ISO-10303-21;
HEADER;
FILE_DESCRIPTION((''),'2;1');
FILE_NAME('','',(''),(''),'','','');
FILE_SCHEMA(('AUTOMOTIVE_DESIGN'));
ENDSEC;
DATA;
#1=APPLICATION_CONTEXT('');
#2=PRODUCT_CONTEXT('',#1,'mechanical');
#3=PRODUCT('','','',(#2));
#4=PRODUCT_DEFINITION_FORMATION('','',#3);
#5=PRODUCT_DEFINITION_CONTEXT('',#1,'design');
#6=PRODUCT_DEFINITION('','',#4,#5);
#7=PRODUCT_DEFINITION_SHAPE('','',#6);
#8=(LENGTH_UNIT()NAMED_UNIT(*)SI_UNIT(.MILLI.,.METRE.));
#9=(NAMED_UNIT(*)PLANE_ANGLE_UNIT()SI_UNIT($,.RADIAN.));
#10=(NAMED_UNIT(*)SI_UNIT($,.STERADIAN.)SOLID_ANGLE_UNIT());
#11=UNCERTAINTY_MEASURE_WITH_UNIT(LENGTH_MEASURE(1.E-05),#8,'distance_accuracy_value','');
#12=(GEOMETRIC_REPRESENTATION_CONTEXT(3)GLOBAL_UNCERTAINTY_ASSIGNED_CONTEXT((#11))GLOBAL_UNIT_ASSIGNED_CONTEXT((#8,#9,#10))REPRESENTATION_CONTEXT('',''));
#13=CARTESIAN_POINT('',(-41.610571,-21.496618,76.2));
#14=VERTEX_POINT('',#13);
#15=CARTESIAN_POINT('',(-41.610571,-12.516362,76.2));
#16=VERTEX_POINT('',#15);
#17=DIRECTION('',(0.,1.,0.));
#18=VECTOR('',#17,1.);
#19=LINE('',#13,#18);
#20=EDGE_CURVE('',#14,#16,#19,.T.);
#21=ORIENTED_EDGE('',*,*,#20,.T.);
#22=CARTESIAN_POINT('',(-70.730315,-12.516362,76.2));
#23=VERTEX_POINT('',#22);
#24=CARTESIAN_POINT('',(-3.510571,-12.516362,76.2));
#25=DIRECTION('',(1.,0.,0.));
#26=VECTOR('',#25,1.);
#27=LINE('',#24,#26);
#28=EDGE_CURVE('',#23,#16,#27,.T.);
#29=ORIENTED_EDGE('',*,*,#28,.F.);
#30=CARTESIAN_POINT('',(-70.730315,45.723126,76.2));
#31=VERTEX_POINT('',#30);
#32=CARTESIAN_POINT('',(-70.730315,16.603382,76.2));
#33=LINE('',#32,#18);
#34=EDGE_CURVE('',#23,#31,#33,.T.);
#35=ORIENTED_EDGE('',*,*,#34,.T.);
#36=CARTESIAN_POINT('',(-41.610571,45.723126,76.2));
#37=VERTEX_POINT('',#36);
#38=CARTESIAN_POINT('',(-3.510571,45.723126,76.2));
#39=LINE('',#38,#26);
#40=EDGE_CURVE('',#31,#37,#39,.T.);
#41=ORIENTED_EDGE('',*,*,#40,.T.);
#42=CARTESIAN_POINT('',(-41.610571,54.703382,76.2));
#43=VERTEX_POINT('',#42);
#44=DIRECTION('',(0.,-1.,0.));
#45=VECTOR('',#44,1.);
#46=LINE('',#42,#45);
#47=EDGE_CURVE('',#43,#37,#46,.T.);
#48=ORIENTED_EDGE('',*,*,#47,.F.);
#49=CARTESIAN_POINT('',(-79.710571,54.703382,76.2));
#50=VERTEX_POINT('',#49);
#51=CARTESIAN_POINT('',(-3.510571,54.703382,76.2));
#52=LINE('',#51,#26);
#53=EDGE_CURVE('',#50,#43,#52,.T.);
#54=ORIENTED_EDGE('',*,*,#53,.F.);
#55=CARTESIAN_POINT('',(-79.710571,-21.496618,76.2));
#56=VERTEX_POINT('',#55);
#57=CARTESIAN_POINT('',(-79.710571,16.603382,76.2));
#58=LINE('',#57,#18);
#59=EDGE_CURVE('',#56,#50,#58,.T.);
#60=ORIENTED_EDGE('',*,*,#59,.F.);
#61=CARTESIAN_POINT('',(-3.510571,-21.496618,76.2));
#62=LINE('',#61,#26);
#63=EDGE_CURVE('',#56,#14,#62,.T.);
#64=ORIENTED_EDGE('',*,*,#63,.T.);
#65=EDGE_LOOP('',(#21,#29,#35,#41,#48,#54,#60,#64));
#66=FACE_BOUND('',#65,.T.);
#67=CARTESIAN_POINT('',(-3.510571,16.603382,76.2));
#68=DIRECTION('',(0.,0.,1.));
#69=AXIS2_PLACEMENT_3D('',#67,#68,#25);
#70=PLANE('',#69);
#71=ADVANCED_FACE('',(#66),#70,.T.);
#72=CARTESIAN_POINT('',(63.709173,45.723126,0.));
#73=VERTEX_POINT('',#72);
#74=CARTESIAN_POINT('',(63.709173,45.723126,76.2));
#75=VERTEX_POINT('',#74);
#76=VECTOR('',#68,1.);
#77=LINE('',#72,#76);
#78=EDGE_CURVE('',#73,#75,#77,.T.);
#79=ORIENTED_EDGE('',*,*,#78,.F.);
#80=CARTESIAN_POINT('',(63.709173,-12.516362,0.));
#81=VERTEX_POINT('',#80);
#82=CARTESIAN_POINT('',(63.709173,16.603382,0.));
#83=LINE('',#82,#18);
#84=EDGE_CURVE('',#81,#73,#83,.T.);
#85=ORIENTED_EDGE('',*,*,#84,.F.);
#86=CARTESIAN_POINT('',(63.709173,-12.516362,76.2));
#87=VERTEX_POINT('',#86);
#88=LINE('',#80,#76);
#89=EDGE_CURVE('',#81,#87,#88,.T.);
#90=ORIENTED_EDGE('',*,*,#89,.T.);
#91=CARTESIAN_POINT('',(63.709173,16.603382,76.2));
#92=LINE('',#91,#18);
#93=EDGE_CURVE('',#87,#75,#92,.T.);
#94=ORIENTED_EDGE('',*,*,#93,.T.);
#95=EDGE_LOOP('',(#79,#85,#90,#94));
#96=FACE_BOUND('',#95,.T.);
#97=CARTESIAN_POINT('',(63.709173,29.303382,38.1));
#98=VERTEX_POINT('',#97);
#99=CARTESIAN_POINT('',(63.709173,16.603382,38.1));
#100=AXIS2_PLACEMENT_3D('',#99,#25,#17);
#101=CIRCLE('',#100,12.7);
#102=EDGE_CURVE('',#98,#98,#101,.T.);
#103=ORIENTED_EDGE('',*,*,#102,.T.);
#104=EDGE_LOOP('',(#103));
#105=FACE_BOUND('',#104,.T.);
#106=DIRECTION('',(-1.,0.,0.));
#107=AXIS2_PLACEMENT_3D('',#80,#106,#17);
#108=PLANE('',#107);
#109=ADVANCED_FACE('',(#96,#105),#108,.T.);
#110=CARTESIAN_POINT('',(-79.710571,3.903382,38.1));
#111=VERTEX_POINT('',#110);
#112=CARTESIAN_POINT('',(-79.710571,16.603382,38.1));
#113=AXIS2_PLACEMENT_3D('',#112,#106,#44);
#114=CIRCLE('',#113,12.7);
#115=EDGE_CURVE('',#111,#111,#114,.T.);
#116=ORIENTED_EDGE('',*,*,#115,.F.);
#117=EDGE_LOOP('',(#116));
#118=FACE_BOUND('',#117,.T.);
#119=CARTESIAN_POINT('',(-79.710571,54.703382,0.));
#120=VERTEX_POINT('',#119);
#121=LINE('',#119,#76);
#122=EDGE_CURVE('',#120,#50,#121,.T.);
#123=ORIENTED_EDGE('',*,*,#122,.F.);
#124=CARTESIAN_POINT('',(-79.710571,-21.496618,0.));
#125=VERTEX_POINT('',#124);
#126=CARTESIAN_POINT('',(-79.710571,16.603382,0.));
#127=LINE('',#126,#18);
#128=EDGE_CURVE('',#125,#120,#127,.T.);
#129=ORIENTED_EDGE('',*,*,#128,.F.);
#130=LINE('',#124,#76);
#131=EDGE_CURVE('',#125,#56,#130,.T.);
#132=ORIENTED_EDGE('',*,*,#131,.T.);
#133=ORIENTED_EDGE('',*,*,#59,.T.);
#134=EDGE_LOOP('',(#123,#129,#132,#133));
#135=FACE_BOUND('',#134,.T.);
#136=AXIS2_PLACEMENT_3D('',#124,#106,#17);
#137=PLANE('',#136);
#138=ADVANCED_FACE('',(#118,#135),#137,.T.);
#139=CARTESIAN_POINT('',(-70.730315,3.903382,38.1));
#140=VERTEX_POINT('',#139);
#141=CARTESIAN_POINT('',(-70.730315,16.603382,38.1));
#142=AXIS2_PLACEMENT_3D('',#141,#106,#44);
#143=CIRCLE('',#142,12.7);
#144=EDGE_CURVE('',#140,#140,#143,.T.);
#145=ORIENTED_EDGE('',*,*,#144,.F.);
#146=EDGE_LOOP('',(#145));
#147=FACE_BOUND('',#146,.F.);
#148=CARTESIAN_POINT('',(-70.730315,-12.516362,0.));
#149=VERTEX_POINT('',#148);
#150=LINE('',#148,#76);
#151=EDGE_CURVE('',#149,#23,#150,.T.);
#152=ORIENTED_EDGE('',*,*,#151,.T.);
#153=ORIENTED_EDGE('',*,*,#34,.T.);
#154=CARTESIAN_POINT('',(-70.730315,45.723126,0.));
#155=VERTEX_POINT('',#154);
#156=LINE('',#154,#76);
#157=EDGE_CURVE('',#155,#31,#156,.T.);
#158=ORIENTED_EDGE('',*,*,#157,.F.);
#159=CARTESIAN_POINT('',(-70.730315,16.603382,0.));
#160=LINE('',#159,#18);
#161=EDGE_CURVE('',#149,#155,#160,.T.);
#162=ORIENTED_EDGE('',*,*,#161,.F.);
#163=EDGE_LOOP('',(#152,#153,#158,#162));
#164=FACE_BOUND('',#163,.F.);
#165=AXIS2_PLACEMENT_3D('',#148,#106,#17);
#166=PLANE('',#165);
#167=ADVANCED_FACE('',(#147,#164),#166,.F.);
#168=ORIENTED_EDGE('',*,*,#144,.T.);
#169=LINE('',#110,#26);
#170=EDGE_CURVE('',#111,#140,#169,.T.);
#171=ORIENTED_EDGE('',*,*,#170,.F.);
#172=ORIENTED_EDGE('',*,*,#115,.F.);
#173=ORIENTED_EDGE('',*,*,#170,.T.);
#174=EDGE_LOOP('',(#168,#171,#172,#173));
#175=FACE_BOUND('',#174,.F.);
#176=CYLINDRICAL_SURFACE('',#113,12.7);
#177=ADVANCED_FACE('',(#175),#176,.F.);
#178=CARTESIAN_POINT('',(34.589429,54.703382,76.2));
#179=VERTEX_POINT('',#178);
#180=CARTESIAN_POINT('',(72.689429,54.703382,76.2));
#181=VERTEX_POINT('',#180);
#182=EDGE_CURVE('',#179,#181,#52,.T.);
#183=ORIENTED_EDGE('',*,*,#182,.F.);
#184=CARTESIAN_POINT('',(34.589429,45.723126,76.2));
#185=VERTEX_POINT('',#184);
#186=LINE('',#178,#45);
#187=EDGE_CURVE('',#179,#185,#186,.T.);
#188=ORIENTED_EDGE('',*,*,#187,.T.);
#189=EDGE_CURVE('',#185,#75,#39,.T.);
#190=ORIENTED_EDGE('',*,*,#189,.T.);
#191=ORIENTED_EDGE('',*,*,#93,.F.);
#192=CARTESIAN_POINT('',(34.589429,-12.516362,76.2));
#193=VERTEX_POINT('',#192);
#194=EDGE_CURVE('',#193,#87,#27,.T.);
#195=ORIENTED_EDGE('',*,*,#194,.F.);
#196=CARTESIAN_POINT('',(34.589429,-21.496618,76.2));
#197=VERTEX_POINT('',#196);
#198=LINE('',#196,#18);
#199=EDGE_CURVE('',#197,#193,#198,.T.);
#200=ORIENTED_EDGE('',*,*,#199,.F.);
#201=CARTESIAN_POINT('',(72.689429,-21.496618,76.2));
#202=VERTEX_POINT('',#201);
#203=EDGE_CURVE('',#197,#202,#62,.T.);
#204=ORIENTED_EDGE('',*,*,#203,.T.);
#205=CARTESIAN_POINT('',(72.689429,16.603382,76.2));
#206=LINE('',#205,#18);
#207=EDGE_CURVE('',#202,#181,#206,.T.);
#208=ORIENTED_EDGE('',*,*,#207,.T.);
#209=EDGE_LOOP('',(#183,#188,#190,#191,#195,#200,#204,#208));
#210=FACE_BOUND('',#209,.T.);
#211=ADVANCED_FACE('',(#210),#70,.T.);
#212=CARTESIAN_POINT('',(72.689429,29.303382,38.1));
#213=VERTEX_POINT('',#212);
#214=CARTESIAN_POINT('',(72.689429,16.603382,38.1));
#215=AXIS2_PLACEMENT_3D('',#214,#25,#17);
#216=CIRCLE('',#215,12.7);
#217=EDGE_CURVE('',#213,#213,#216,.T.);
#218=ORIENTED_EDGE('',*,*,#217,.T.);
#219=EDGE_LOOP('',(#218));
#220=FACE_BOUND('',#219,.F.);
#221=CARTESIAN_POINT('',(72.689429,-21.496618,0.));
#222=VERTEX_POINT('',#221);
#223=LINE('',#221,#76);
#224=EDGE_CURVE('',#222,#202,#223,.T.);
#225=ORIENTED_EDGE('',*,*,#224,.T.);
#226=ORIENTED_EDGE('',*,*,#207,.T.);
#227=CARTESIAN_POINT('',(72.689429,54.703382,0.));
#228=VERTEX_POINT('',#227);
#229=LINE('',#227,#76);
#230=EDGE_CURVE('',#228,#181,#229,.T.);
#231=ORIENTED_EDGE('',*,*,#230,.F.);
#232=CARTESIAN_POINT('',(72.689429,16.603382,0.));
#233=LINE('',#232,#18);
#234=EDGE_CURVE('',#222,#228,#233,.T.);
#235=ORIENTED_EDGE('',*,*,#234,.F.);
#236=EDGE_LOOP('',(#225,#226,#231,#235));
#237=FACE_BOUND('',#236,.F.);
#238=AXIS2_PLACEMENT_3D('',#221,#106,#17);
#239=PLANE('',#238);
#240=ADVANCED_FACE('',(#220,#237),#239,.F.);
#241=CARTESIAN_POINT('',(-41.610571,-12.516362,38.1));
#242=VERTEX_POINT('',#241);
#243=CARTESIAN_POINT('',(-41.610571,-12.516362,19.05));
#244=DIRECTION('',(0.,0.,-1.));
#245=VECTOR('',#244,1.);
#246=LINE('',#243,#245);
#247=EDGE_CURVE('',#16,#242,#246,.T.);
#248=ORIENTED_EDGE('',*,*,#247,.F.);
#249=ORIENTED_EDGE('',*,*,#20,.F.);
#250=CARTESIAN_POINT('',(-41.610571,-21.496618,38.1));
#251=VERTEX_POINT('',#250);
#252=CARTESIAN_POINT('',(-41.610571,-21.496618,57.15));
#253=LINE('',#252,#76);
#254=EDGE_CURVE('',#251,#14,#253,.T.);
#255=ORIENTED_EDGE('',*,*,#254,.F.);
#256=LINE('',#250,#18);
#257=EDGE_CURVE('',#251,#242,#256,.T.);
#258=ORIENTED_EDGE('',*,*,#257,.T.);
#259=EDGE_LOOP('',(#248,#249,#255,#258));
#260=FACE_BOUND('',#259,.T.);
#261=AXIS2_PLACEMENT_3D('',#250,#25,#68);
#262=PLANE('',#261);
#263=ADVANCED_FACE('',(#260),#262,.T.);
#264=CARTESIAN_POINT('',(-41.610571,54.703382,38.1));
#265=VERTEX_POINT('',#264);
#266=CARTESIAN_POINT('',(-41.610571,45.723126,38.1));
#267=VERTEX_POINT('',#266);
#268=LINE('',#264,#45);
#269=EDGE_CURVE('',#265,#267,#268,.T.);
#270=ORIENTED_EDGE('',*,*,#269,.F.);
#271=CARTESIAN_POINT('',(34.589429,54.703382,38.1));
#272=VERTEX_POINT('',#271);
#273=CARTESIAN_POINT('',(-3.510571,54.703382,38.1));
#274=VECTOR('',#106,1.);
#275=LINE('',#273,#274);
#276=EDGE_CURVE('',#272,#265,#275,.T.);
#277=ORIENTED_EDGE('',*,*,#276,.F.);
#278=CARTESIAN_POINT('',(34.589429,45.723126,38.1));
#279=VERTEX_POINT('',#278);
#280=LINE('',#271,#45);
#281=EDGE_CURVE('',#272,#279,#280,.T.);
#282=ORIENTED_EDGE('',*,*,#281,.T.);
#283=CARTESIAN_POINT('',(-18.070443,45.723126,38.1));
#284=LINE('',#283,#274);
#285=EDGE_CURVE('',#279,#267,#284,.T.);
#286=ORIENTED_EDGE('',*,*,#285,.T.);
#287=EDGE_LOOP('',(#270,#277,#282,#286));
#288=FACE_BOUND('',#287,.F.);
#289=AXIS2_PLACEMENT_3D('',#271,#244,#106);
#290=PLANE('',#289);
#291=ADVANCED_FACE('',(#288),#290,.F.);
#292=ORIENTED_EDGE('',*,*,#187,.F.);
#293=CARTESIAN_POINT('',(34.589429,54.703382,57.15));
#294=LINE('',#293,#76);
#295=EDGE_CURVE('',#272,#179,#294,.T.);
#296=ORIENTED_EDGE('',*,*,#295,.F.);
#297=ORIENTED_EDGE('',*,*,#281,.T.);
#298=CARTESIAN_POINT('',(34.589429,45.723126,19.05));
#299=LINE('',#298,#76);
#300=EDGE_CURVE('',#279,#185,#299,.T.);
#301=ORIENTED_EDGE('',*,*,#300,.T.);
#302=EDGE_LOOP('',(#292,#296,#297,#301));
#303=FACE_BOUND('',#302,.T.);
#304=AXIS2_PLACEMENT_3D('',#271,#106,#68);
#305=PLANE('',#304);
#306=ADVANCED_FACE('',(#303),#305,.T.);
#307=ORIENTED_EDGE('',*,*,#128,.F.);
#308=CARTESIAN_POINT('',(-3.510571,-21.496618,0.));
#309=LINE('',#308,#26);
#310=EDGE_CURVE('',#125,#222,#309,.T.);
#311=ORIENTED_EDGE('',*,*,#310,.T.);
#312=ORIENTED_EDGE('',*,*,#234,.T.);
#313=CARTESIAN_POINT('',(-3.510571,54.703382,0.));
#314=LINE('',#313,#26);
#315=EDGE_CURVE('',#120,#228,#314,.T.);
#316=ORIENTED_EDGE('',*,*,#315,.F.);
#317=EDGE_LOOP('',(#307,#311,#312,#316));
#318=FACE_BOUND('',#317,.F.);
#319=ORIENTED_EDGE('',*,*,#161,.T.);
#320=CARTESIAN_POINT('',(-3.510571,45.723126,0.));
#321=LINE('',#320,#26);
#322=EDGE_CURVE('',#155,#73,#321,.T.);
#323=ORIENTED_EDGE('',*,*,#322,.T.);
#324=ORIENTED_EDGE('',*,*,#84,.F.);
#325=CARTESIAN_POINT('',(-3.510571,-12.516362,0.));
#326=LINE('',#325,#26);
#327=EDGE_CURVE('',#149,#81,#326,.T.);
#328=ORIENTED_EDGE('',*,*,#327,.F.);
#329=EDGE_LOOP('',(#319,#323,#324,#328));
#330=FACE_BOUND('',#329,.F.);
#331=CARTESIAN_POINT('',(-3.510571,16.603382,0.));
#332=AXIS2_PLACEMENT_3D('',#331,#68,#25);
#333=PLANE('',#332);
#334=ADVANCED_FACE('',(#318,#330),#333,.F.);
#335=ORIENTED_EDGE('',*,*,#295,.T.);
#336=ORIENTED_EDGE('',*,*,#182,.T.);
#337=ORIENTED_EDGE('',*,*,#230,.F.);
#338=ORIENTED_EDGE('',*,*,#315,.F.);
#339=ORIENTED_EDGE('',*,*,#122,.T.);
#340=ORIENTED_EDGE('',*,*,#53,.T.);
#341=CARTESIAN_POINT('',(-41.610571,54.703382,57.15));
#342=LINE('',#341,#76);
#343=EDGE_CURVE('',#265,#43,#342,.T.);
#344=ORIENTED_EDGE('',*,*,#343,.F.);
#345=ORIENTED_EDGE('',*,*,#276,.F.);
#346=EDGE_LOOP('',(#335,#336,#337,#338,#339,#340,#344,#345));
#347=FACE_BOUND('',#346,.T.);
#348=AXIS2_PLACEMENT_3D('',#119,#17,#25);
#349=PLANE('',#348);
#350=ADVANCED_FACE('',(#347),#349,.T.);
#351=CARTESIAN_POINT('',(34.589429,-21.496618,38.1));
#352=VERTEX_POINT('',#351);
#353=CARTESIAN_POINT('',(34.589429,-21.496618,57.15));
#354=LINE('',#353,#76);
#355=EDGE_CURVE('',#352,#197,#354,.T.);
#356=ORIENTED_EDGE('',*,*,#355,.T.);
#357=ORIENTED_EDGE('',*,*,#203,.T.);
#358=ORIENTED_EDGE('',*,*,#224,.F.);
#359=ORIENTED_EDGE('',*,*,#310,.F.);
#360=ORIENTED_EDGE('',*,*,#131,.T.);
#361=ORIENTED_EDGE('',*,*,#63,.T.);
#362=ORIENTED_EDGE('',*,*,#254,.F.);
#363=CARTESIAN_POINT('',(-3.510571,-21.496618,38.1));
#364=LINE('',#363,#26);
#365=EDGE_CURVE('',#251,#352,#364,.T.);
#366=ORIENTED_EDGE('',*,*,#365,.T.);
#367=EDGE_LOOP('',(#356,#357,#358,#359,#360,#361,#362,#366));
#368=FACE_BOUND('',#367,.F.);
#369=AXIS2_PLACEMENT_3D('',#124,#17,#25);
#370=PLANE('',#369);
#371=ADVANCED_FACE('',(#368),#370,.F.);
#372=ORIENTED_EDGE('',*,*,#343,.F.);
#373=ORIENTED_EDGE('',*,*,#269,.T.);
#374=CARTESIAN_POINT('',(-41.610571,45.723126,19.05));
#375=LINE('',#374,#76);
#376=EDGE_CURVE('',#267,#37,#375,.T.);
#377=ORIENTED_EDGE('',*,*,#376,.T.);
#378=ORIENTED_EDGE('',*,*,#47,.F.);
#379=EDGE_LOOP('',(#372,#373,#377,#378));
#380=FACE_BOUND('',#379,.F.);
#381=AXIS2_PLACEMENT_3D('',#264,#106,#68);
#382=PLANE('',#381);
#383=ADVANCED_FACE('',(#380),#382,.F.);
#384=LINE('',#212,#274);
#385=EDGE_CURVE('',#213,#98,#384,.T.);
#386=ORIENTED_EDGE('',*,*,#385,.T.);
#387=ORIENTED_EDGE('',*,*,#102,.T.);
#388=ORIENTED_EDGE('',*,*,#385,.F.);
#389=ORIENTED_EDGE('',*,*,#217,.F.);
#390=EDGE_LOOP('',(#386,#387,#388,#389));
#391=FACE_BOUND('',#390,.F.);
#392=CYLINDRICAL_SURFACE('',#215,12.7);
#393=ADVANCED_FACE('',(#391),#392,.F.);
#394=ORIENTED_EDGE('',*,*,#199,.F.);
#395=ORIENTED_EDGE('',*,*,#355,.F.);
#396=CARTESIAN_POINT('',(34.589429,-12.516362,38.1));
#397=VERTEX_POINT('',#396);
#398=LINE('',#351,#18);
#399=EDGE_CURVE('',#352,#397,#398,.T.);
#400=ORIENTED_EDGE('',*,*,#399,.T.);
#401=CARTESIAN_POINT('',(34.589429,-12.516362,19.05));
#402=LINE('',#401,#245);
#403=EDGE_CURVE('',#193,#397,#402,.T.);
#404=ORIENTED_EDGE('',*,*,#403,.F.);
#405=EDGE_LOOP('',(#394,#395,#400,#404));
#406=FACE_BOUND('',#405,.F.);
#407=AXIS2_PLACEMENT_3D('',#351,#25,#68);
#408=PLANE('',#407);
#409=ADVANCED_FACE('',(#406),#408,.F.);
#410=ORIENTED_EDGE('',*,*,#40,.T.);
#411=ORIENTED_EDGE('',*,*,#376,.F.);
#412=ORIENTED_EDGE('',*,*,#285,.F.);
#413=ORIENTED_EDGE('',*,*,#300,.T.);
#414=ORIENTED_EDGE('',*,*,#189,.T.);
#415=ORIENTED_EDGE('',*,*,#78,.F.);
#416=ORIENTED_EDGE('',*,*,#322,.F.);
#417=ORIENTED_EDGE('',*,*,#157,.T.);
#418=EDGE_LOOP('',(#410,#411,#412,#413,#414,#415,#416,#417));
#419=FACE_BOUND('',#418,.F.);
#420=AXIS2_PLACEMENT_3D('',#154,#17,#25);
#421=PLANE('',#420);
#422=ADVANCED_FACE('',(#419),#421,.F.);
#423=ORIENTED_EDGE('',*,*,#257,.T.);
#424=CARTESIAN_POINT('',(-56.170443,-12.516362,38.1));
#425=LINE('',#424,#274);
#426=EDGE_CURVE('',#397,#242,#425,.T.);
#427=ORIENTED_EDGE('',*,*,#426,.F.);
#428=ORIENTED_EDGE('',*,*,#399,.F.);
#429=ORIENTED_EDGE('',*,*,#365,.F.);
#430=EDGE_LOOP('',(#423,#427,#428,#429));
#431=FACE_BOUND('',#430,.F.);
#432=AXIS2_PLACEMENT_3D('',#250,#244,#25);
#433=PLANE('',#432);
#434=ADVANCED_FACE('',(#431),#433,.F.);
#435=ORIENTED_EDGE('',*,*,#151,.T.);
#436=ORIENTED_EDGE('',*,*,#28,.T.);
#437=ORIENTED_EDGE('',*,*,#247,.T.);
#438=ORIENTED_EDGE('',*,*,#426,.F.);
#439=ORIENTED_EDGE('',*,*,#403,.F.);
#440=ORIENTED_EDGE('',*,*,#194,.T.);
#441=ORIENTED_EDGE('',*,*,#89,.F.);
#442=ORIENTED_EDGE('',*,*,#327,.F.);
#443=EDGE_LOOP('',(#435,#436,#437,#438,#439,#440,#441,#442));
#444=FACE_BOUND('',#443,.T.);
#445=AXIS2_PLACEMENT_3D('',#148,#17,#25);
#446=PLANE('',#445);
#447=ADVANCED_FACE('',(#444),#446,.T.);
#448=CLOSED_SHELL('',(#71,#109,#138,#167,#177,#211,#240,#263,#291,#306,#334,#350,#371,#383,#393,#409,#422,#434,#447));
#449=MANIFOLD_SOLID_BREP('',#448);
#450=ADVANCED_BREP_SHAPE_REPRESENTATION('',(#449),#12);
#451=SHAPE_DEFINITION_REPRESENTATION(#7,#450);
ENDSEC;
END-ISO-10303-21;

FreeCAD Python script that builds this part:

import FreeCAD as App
import Part
import Sketcher

V = App.Vector
Q = App.Units.Quantity


def add_polygon(sketch, points):
    """Adds a closed chain of lines whose ends are joined by coincident constraints."""
    first, n = sketch.GeometryCount, len(points)
    for a, b in zip(points, points[1:] + points[:1]):
        sketch.addGeometry(Part.LineSegment(App.Vector(*a, 0), App.Vector(*b, 0)), False)
    for i in range(n):
        sketch.addConstraint(Sketcher.Constraint("Coincident", first + i, 2, first + (i + 1) % n, 1))

doc = App.newDocument("Part")
body = doc.addObject("PartDesign::Body", "Body")

sketch1 = body.newObject("Sketcher::SketchObject", "Sketch")
sketch1.AttachmentSupport = (doc.getObject("XY_Plane"), [""])
sketch1.MapMode = "FlatFace"
add_polygon(sketch1, [(-80, 55), (-80, -21), (73, -21), (73, 55)])
add_polygon(sketch1, [(64, -13), (-71, -13), (-71, 46), (64, 46)])
sketch1.addConstraint(Sketcher.Constraint("Vertical", 0))
sketch1.addConstraint(Sketcher.Constraint("Horizontal", 1))
sketch1.addConstraint(Sketcher.Constraint("Vertical", 2))
sketch1.addConstraint(Sketcher.Constraint("Horizontal", 3))
sketch1.addConstraint(Sketcher.Constraint("Horizontal", 4))
sketch1.addConstraint(Sketcher.Constraint("Vertical", 5))
sketch1.addConstraint(Sketcher.Constraint("Horizontal", 6))
sketch1.addConstraint(Sketcher.Constraint("Vertical", 7))
sketch1.addConstraint(Sketcher.Constraint("DistanceX", 1, 1, 1, 2, Q("6 in")))
sketch1.addConstraint(Sketcher.Constraint("DistanceY", 0, 2, 0, 1, Q("3 in")))
sketch1.addConstraint(Sketcher.Constraint("DistanceX", 4, 2, 4, 1, 134.439488))
sketch1.addConstraint(Sketcher.Constraint("DistanceY", 5, 1, 5, 2, 58.239488))
sketch1.addConstraint(Sketcher.Constraint("DistanceX", 0, 2, -1, 1, 79.710571))
sketch1.addConstraint(Sketcher.Constraint("DistanceY", 0, 2, -1, 1, 21.496618))
sketch1.addConstraint(Sketcher.Constraint("DistanceX", 4, 2, -1, 1, 70.730315))
sketch1.addConstraint(Sketcher.Constraint("DistanceY", 4, 2, -1, 1, 12.516362))
pad1 = body.newObject("PartDesign::Pad", "Pad")
pad1.Profile = sketch1
pad1.Length = Q("3 in")

sketch2 = body.newObject("Sketcher::SketchObject", "Sketch001")
sketch2.AttachmentSupport = (doc.getObject("XZ_Plane"), [""])
sketch2.MapMode = "FlatFace"
sketch2.AttachmentOffset = App.Placement(V(0, 0, 21.496618), App.Rotation())
add_polygon(sketch2, [(-42, 76), (-42, 38), (35, 38), (35, 76)])
sketch2.addConstraint(Sketcher.Constraint("Vertical", 0))
sketch2.addConstraint(Sketcher.Constraint("Horizontal", 1))
sketch2.addConstraint(Sketcher.Constraint("Vertical", 2))
sketch2.addConstraint(Sketcher.Constraint("Horizontal", 3))
sketch2.addConstraint(Sketcher.Constraint("DistanceX", 1, 1, 1, 2, Q("3 in")))
sketch2.addConstraint(Sketcher.Constraint("DistanceY", 0, 2, 0, 1, Q("1.5 in")))
sketch2.addConstraint(Sketcher.Constraint("DistanceY", -1, 1, 2, 2, Q("3 in")))
sketch2.addConstraint(Sketcher.Constraint("DistanceX", 0, 2, -1, 1, 41.610571))
pocket1 = body.newObject("PartDesign::Pocket", "Pocket")
pocket1.Profile = sketch2
pocket1.Length = Q("1 in")

sketch3 = body.newObject("Sketcher::SketchObject", "Sketch002")
sketch3.AttachmentSupport = (doc.getObject("XZ_Plane"), [""])
sketch3.MapMode = "FlatFace"
sketch3.AttachmentOffset = App.Placement(V(0, 0, -54.703382), App.Rotation())
add_polygon(sketch3, [(35, 76), (35, 38), (-42, 38), (-42, 76)])
sketch3.addConstraint(Sketcher.Constraint("Vertical", 0))
sketch3.addConstraint(Sketcher.Constraint("Horizontal", 1))
sketch3.addConstraint(Sketcher.Constraint("Vertical", 2))
sketch3.addConstraint(Sketcher.Constraint("Horizontal", 3))
sketch3.addConstraint(Sketcher.Constraint("DistanceX", 1, 2, 1, 1, Q("3 in")))
sketch3.addConstraint(Sketcher.Constraint("DistanceY", 0, 2, 0, 1, Q("1.5 in")))
sketch3.addConstraint(Sketcher.Constraint("DistanceY", -1, 1, 2, 2, Q("3 in")))
sketch3.addConstraint(Sketcher.Constraint("DistanceX", -1, 1, 0, 2, 34.589429))
pocket2 = body.newObject("PartDesign::Pocket", "Pocket001")
pocket2.Profile = sketch3
pocket2.Length = Q("1 in")
pocket2.Reversed = True

sketch4 = body.newObject("Sketcher::SketchObject", "Sketch003")
sketch4.AttachmentSupport = (doc.getObject("YZ_Plane"), [""])
sketch4.MapMode = "FlatFace"
sketch4.AttachmentOffset = App.Placement(V(0, 0, -79.710571), App.Rotation())
sketch4.addGeometry(Part.Circle(V(17, 38, 0), V(0, 0, 1), 13), False)
sketch4.addConstraint(Sketcher.Constraint("Diameter", 0, Q("1 in")))
sketch4.addConstraint(Sketcher.Constraint("DistanceY", -1, 1, 0, 3, Q("1.5 in")))
sketch4.addConstraint(Sketcher.Constraint("DistanceX", -1, 1, 0, 3, 16.603382))
pocket3 = body.newObject("PartDesign::Pocket", "Pocket002")
pocket3.Profile = sketch4
pocket3.Length = Q("2.03 in")
pocket3.Reversed = True

sketch5 = body.newObject("Sketcher::SketchObject", "Sketch004")
sketch5.AttachmentSupport = (doc.getObject("YZ_Plane"), [""])
sketch5.MapMode = "FlatFace"
sketch5.AttachmentOffset = App.Placement(V(0, 0, 72.689429), App.Rotation())
sketch5.addGeometry(Part.Circle(V(17, 38, 0), V(0, 0, 1), 13), False)
sketch5.addConstraint(Sketcher.Constraint("Diameter", 0, Q("1 in")))
sketch5.addConstraint(Sketcher.Constraint("DistanceY", -1, 1, 0, 3, Q("1.5 in")))
sketch5.addConstraint(Sketcher.Constraint("DistanceX", -1, 1, 0, 3, 16.603382))
pocket4 = body.newObject("PartDesign::Pocket", "Pocket003")
pocket4.Profile = sketch5
pocket4.Length = Q("1 in")

doc.recompute()
